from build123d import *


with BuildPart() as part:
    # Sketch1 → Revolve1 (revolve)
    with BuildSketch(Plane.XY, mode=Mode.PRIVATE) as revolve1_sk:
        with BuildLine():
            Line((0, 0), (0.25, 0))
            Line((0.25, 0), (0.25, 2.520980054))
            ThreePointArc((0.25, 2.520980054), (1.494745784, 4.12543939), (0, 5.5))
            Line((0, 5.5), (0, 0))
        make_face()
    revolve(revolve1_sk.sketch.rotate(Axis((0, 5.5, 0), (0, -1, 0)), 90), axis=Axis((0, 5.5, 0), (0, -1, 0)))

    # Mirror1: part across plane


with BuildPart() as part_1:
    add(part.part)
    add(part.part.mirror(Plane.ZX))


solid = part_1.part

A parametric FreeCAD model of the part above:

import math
import FreeCAD as App
import Part
import Sketcher
from FreeCAD import Vector

doc = App.newDocument("Part")
body = doc.addObject("PartDesign::Body", "Body")

# Sketch on XY plane
sketch1 = body.newObject("Sketcher::SketchObject", "Sketch")
sketch1.AttachmentSupport = (doc.getObject("XY_Plane"), [""])
sketch1.MapMode = "FlatFace"
sketch1.addGeometry([
    Part.LineSegment(Vector(0, 0, 0), Vector(0.25, 0, 0)),
    Part.LineSegment(Vector(0.25, 0, 0), Vector(0.25, 2.52098, 0)),
    Part.ArcOfCircle(Part.Circle(Vector(0, 4, 0), Vector(0, 0, 1), 1.5), math.radians(-80.405932), math.radians(90)),
    Part.LineSegment(Vector(0, 5.5, 0), Vector(0, 0, 0)),
], False)
sketch1.addConstraint([
    Sketcher.Constraint("Coincident", 0, 2, 1, 1),
    Sketcher.Constraint("Coincident", 1, 2, 2, 1),
    Sketcher.Constraint("Coincident", 2, 2, 3, 1),
    Sketcher.Constraint("Coincident", 3, 2, 0, 1),
    Sketcher.Constraint("Horizontal", 0),
    Sketcher.Constraint("Vertical", 1),
    Sketcher.Constraint("Vertical", 3),
    Sketcher.Constraint("Coincident", 3, 2, -1, 1),
    Sketcher.Constraint("PointOnObject", 2, 3, -2),
    Sketcher.Constraint("Radius", 2, 1.5),
    Sketcher.Constraint("DistanceY", 3, 2, 3, 1, 5.5),
    Sketcher.Constraint("DistanceX", 0, 1, 0, 2, 0.25),
])
revolution = body.newObject("PartDesign::Revolution", "Revolution")
revolution.Profile = sketch1
revolution.ReferenceAxis = (sketch1, ["V_Axis"])
revolution.Angle = 360
body2 = doc.addObject("PartDesign::Body", "Body001")
doc.recompute()

body2.BaseFeature = body
doc.recompute()

mirroring = doc.addObject("Part::Mirroring", "Mirroring")
mirroring.Source = body
mirroring.Base = Vector(0, 0, 0)
mirroring.Normal = Vector(0, 1, 0)
body3 = doc.addObject("PartDesign::Body", "Body002")
body3.BaseFeature = mirroring
boolean = body2.newObject("PartDesign::Boolean", "Boolean")
boolean.Type = "Fuse"
boolean.addObjects([body3])
doc.recompute()
mirroring.Visibility = False

doc.recompute()
